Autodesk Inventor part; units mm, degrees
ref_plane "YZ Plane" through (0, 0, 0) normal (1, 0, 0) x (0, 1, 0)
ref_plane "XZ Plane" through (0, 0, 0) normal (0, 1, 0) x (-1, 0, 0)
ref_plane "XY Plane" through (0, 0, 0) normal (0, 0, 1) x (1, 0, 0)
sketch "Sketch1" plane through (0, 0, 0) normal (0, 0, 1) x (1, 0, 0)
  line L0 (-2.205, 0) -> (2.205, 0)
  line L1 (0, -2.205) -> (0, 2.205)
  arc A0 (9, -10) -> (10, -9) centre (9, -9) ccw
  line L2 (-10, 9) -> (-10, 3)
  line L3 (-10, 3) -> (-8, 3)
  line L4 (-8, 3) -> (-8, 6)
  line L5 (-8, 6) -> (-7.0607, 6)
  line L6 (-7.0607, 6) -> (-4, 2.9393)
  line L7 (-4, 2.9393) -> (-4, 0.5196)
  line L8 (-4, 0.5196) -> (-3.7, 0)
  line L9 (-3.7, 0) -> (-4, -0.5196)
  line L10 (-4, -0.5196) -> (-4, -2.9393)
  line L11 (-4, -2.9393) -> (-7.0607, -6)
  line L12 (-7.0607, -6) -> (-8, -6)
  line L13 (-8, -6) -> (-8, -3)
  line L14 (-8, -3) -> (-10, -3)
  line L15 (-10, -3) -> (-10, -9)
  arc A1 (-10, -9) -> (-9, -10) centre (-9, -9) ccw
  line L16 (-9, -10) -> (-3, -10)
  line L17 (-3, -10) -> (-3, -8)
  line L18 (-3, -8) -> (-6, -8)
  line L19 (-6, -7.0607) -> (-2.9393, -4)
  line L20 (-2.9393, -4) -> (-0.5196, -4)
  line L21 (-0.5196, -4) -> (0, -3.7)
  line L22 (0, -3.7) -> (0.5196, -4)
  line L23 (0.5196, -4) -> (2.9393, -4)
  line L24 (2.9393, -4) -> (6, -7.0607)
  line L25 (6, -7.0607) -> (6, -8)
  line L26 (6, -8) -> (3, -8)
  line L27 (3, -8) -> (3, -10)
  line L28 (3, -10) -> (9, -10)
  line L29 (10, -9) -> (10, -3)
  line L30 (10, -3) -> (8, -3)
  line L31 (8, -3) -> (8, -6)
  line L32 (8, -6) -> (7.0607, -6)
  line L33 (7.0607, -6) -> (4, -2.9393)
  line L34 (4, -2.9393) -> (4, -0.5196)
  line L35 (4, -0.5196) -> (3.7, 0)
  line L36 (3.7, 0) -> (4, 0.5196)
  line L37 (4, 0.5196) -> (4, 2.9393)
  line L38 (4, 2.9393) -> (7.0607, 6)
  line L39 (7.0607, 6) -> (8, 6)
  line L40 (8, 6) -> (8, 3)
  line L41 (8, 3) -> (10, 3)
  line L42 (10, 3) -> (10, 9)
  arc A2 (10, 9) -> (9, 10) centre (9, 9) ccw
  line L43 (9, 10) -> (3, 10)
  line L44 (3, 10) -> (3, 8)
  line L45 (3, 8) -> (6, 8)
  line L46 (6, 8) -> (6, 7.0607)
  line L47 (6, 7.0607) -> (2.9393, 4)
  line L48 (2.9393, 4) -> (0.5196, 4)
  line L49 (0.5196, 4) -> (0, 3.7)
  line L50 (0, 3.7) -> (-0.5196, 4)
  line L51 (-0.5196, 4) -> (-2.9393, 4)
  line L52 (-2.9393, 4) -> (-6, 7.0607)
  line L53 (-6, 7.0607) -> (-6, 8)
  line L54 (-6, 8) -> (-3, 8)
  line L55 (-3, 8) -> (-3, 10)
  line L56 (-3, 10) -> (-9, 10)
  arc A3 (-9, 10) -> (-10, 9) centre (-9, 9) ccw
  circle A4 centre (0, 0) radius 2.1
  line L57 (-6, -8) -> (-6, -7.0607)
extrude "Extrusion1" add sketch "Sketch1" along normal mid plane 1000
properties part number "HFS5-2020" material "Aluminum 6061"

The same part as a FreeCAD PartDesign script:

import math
import FreeCAD as App
import Part
import Sketcher
from FreeCAD import Vector
Q = App.Units.Quantity

doc = App.newDocument("Part")
body = doc.addObject("PartDesign::Body", "Body")

# Sketch on XY plane
sketch1 = doc.addObject("Sketcher::SketchObject", "Sketch")
body.addObject(sketch1)
sketch1.AttachmentSupport = (doc.XY_Plane, [""])
sketch1.MapMode = "FlatFace"
sketch1.addGeometry([
    Part.LineSegment(Vector(3, -10, 0), Vector(9, -10, 0)),  # 0
    Part.ArcOfCircle(Part.Circle(Vector(9, -9, 0), Vector(0, 0, 1), 1), math.radians(-90), math.radians(0)),  # 1
    Part.LineSegment(Vector(10, -9, 0), Vector(10, -3, 0)),  # 2
    Part.LineSegment(Vector(10, -3, 0), Vector(8, -3, 0)),  # 3
    Part.LineSegment(Vector(8, -3, 0), Vector(8, -6, 0)),  # 4
    Part.LineSegment(Vector(8, -6, 0), Vector(7.1, -6, 0)),  # 5
    Part.LineSegment(Vector(7.1, -6, 0), Vector(4, -2.9, 0)),  # 6
    Part.LineSegment(Vector(4, -2.9, 0), Vector(4, -0.5, 0)),  # 7
    Part.LineSegment(Vector(4, -0.5, 0), Vector(3.7, 0, 0)),  # 8
    Part.LineSegment(Vector(3.7, 0, 0), Vector(4, 0.5, 0)),  # 9
    Part.LineSegment(Vector(4, 0.5, 0), Vector(4, 2.9, 0)),  # 10
    Part.LineSegment(Vector(4, 2.9, 0), Vector(7.1, 6, 0)),  # 11
    Part.LineSegment(Vector(7.1, 6, 0), Vector(8, 6, 0)),  # 12
    Part.LineSegment(Vector(8, 6, 0), Vector(8, 3, 0)),  # 13
    Part.LineSegment(Vector(8, 3, 0), Vector(10, 3, 0)),  # 14
    Part.LineSegment(Vector(10, 3, 0), Vector(10, 9, 0)),  # 15
    Part.ArcOfCircle(Part.Circle(Vector(9, 9, 0), Vector(0, 0, 1), 1), math.radians(0), math.radians(90)),  # 16
    Part.LineSegment(Vector(9, 10, 0), Vector(3, 10, 0)),  # 17
    Part.LineSegment(Vector(3, 10, 0), Vector(3, 8, 0)),  # 18
    Part.LineSegment(Vector(3, 8, 0), Vector(6, 8, 0)),  # 19
    Part.LineSegment(Vector(6, 8, 0), Vector(6, 7.1, 0)),  # 20
    Part.LineSegment(Vector(6, 7.1, 0), Vector(2.9, 4, 0)),  # 21
    Part.LineSegment(Vector(2.9, 4, 0), Vector(0.5, 4, 0)),  # 22
    Part.LineSegment(Vector(0.5, 4, 0), Vector(0, 3.7, 0)),  # 23
    Part.LineSegment(Vector(0, 3.7, 0), Vector(-0.5, 4, 0)),  # 24
    Part.LineSegment(Vector(-0.5, 4, 0), Vector(-2.9, 4, 0)),  # 25
    Part.LineSegment(Vector(-2.9, 4, 0), Vector(-6, 7.1, 0)),  # 26
    Part.LineSegment(Vector(-6, 7.1, 0), Vector(-6, 8, 0)),  # 27
    Part.LineSegment(Vector(-6, 8, 0), Vector(-3, 8, 0)),  # 28
    Part.LineSegment(Vector(-3, 8, 0), Vector(-3, 10, 0)),  # 29
    Part.LineSegment(Vector(-3, 10, 0), Vector(-9, 10, 0)),  # 30
    Part.ArcOfCircle(Part.Circle(Vector(-9, 9, 0), Vector(0, 0, 1), 1), math.radians(90), math.radians(180)),  # 31
    Part.LineSegment(Vector(-10, 9, 0), Vector(-10, 3, 0)),  # 32
    Part.LineSegment(Vector(-10, 3, 0), Vector(-8, 3, 0)),  # 33
    Part.LineSegment(Vector(-8, 3, 0), Vector(-8, 6, 0)),  # 34
    Part.LineSegment(Vector(-8, 6, 0), Vector(-7.1, 6, 0)),  # 35
    Part.LineSegment(Vector(-7.1, 6, 0), Vector(-4, 2.9, 0)),  # 36
    Part.LineSegment(Vector(-4, 2.9, 0), Vector(-4, 0.5, 0)),  # 37
    Part.LineSegment(Vector(-4, 0.5, 0), Vector(-3.7, 0, 0)),  # 38
    Part.LineSegment(Vector(-3.7, 0, 0), Vector(-4, -0.5, 0)),  # 39
    Part.LineSegment(Vector(-4, -0.5, 0), Vector(-4, -2.9, 0)),  # 40
    Part.LineSegment(Vector(-4, -2.9, 0), Vector(-7.1, -6, 0)),  # 41
    Part.LineSegment(Vector(-7.1, -6, 0), Vector(-8, -6, 0)),  # 42
    Part.LineSegment(Vector(-8, -6, 0), Vector(-8, -3, 0)),  # 43
    Part.LineSegment(Vector(-8, -3, 0), Vector(-10, -3, 0)),  # 44
    Part.LineSegment(Vector(-10, -3, 0), Vector(-10, -9, 0)),  # 45
    Part.ArcOfCircle(Part.Circle(Vector(-9, -9, 0), Vector(0, 0, 1), 1), math.radians(180), math.radians(270)),  # 46
    Part.LineSegment(Vector(-9, -10, 0), Vector(-3, -10, 0)),  # 47
    Part.LineSegment(Vector(-3, -10, 0), Vector(-3, -8, 0)),  # 48
    Part.LineSegment(Vector(-3, -8, 0), Vector(-6, -8, 0)),  # 49
    Part.LineSegment(Vector(-6, -8, 0), Vector(-6, -7.1, 0)),  # 50
    Part.LineSegment(Vector(-6, -7.1, 0), Vector(-2.9, -4, 0)),  # 51
    Part.LineSegment(Vector(-2.9, -4, 0), Vector(-0.5, -4, 0)),  # 52
    Part.LineSegment(Vector(-0.5, -4, 0), Vector(0, -3.7, 0)),  # 53
    Part.LineSegment(Vector(0, -3.7, 0), Vector(0.5, -4, 0)),  # 54
    Part.LineSegment(Vector(0.5, -4, 0), Vector(2.9, -4, 0)),  # 55
    Part.LineSegment(Vector(2.9, -4, 0), Vector(6, -7.1, 0)),  # 56
    Part.LineSegment(Vector(6, -7.1, 0), Vector(6, -8, 0)),  # 57
    Part.LineSegment(Vector(6, -8, 0), Vector(3, -8, 0)),  # 58
    Part.LineSegment(Vector(3, -8, 0), Vector(3, -10, 0)),  # 59
    Part.Circle(Vector(0, 0, 0), Vector(0, 0, 1), 2.1),  # 60
], False)
sketch1.addConstraint([
    Sketcher.Constraint("Tangent", 0, 2, 1, 1),
    Sketcher.Constraint("Tangent", 1, 2, 2, 1),
    Sketcher.Constraint("Coincident", 2, 2, 3, 1),
    Sketcher.Constraint("Coincident", 3, 2, 4, 1),
    Sketcher.Constraint("Coincident", 4, 2, 5, 1),
    Sketcher.Constraint("Coincident", 5, 2, 6, 1),
    Sketcher.Constraint("Coincident", 6, 2, 7, 1),
    Sketcher.Constraint("Coincident", 7, 2, 8, 1),
    Sketcher.Constraint("Coincident", 8, 2, 9, 1),
    Sketcher.Constraint("Coincident", 9, 2, 10, 1),
    Sketcher.Constraint("Coincident", 10, 2, 11, 1),
    Sketcher.Constraint("Coincident", 11, 2, 12, 1),
    Sketcher.Constraint("Coincident", 12, 2, 13, 1),
    Sketcher.Constraint("Coincident", 13, 2, 14, 1),
    Sketcher.Constraint("Coincident", 14, 2, 15, 1),
    Sketcher.Constraint("Tangent", 15, 2, 16, 1),
    Sketcher.Constraint("Tangent", 16, 2, 17, 1),
    Sketcher.Constraint("Coincident", 17, 2, 18, 1),
    Sketcher.Constraint("Coincident", 18, 2, 19, 1),
    Sketcher.Constraint("Coincident", 19, 2, 20, 1),
    Sketcher.Constraint("Coincident", 20, 2, 21, 1),
    Sketcher.Constraint("Coincident", 21, 2, 22, 1),
    Sketcher.Constraint("Coincident", 22, 2, 23, 1),
    Sketcher.Constraint("Coincident", 23, 2, 24, 1),
    Sketcher.Constraint("Coincident", 24, 2, 25, 1),
    Sketcher.Constraint("Coincident", 25, 2, 26, 1),
    Sketcher.Constraint("Coincident", 26, 2, 27, 1),
    Sketcher.Constraint("Coincident", 27, 2, 28, 1),
    Sketcher.Constraint("Coincident", 28, 2, 29, 1),
    Sketcher.Constraint("Coincident", 29, 2, 30, 1),
    Sketcher.Constraint("Tangent", 30, 2, 31, 1),
    Sketcher.Constraint("Tangent", 31, 2, 32, 1),
    Sketcher.Constraint("Coincident", 32, 2, 33, 1),
    Sketcher.Constraint("Coincident", 33, 2, 34, 1),
    Sketcher.Constraint("Coincident", 34, 2, 35, 1),
    Sketcher.Constraint("Coincident", 35, 2, 36, 1),
    Sketcher.Constraint("Coincident", 36, 2, 37, 1),
    Sketcher.Constraint("Coincident", 37, 2, 38, 1),
    Sketcher.Constraint("Coincident", 38, 2, 39, 1),
    Sketcher.Constraint("Coincident", 39, 2, 40, 1),
    Sketcher.Constraint("Coincident", 40, 2, 41, 1),
    Sketcher.Constraint("Coincident", 41, 2, 42, 1),
    Sketcher.Constraint("Coincident", 42, 2, 43, 1),
    Sketcher.Constraint("Coincident", 43, 2, 44, 1),
    Sketcher.Constraint("Coincident", 44, 2, 45, 1),
    Sketcher.Constraint("Tangent", 45, 2, 46, 1),
    Sketcher.Constraint("Tangent", 46, 2, 47, 1),
    Sketcher.Constraint("Coincident", 47, 2, 48, 1),
    Sketcher.Constraint("Coincident", 48, 2, 49, 1),
    Sketcher.Constraint("Coincident", 49, 2, 50, 1),
    Sketcher.Constraint("Coincident", 50, 2, 51, 1),
    Sketcher.Constraint("Coincident", 51, 2, 52, 1),
    Sketcher.Constraint("Coincident", 52, 2, 53, 1),
    Sketcher.Constraint("Coincident", 53, 2, 54, 1),
    Sketcher.Constraint("Coincident", 54, 2, 55, 1),
    Sketcher.Constraint("Coincident", 55, 2, 56, 1),
    Sketcher.Constraint("Coincident", 56, 2, 57, 1),
    Sketcher.Constraint("Coincident", 57, 2, 58, 1),
    Sketcher.Constraint("Coincident", 58, 2, 59, 1),
    Sketcher.Constraint("Coincident", 59, 2, 0, 1),
    Sketcher.Constraint("Horizontal", 0),
    Sketcher.Constraint("Vertical", 2),
    Sketcher.Constraint("Horizontal", 3),
    Sketcher.Constraint("Vertical", 4),
    Sketcher.Constraint("Horizontal", 5),
    Sketcher.Constraint("Vertical", 7),
    Sketcher.Constraint("Vertical", 10),
    Sketcher.Constraint("Horizontal", 12),
    Sketcher.Constraint("Vertical", 13),
    Sketcher.Constraint("Horizontal", 14),
    Sketcher.Constraint("Vertical", 15),
    Sketcher.Constraint("Horizontal", 17),
    Sketcher.Constraint("Vertical", 18),
    Sketcher.Constraint("Horizontal", 19),
    Sketcher.Constraint("Vertical", 20),
    Sketcher.Constraint("Horizontal", 22),
    Sketcher.Constraint("Horizontal", 25),
    Sketcher.Constraint("Vertical", 27),
    Sketcher.Constraint("Horizontal", 28),
    Sketcher.Constraint("Vertical", 29),
    Sketcher.Constraint("Horizontal", 30),
    Sketcher.Constraint("Vertical", 32),
    Sketcher.Constraint("Horizontal", 33),
    Sketcher.Constraint("Vertical", 34),
    Sketcher.Constraint("Horizontal", 35),
    Sketcher.Constraint("Vertical", 37),
    Sketcher.Constraint("Vertical", 40),
    Sketcher.Constraint("Horizontal", 42),
    Sketcher.Constraint("Vertical", 43),
    Sketcher.Constraint("Horizontal", 44),
    Sketcher.Constraint("Vertical", 45),
    Sketcher.Constraint("Horizontal", 47),
    Sketcher.Constraint("Vertical", 48),
    Sketcher.Constraint("Horizontal", 49),
    Sketcher.Constraint("Vertical", 50),
    Sketcher.Constraint("Horizontal", 52),
    Sketcher.Constraint("Horizontal", 55),
    Sketcher.Constraint("Vertical", 57),
    Sketcher.Constraint("Horizontal", 58),
    Sketcher.Constraint("Vertical", 59),
    Sketcher.Constraint("Coincident", 60, 3, -1, 1),
    Sketcher.Constraint("Equal", 1, 16),
    Sketcher.Constraint("Equal", 16, 31),
    Sketcher.Constraint("Equal", 31, 46),
    Sketcher.Constraint("Symmetric", 1, 3, 31, 3, -1, 1),
    Sketcher.Constraint("Symmetric", 16, 3, 46, 3, -1, 1),
    Sketcher.Constraint("Symmetric", 3, 2, 33, 2, -1, 1),
    Sketcher.Constraint("Symmetric", 5, 2, 35, 2, -1, 1),
    Sketcher.Constraint("Symmetric", 6, 2, 36, 2, -1, 1),
    Sketcher.Constraint("Symmetric", 8, 2, 38, 2, -1, 1),
    Sketcher.Constraint("Symmetric", 9, 2, 39, 2, -1, 1),
    Sketcher.Constraint("Symmetric", 11, 2, 41, 2, -1, 1),
    Sketcher.Constraint("Symmetric", 13, 2, 43, 2, -1, 1),
    Sketcher.Constraint("Symmetric", 18, 2, 48, 2, -1, 1),
    Sketcher.Constraint("Symmetric", 20, 2, 50, 2, -1, 1),
    Sketcher.Constraint("Symmetric", 21, 2, 51, 2, -1, 1),
    Sketcher.Constraint("Symmetric", 23, 2, 53, 2, -1, 1),
    Sketcher.Constraint("Symmetric", 24, 2, 54, 2, -1, 1),
    Sketcher.Constraint("Symmetric", 26, 2, 56, 2, -1, 1),
    Sketcher.Constraint("Symmetric", 28, 2, 58, 2, -1, 1),
    Sketcher.Constraint("Symmetric", 16, 3, 31, 3, -2),
    Sketcher.Constraint("Symmetric", 22, 2, 24, 2, -2),
    Sketcher.Constraint("Symmetric", 20, 2, 26, 2, -2),
    Sketcher.Constraint("Symmetric", 18, 2, 28, 2, -2),
    Sketcher.Constraint("Symmetric", 13, 2, 33, 2, -2),
    Sketcher.Constraint("Symmetric", 11, 2, 35, 2, -2),
    Sketcher.Constraint("Symmetric", 10, 2, 36, 2, -2),
    Sketcher.Constraint("PointOnObject", 8, 2, -1),
    Sketcher.Constraint("PointOnObject", 23, 2, -2),
    Sketcher.Constraint("Perpendicular", 6, 11),
    Sketcher.Constraint("Parallel", 11, 21),
    Sketcher.Constraint("Perpendicular", 8, 23),
    Sketcher.Constraint("Perpendicular", 9, 24),
    Sketcher.Constraint("Perpendicular", 21, 26),
    Sketcher.Constraint("Perpendicular", 23, 38),
    Sketcher.Constraint("Perpendicular", 36, 41),
    Sketcher.Constraint("Perpendicular", 38, 53),
    Sketcher.Constraint("Perpendicular", 51, 56),
    Sketcher.Constraint("Equal", 47, 2),
    Sketcher.Constraint("Equal", 58, 4),
    Sketcher.Constraint("Equal", 55, 7),
    Sketcher.Constraint("Equal", 44, 18),
    Sketcher.Constraint("Equal", 42, 20),
    Sketcher.Constraint("Equal", 11, 21),
    Sketcher.Constraint("Equal", 9, 23),
    Sketcher.Constraint("Radius", 1, 1.0),
    Sketcher.Constraint("Diameter", 60, 4.2),
    Sketcher.Constraint("DistanceX", 0, 1, 0, 2, 6.0),
    Sketcher.Constraint("DistanceX", 3, 2, 3, 1, 2.0),
    Sketcher.Constraint("DistanceX", 19, 1, 19, 2, 3.0),
    Sketcher.Constraint("Angle", 8, Q("120.0007 deg")),
    Sketcher.Constraint("DistanceX", -1, 1, 1, 3, 9.0),
    Sketcher.Constraint("DistanceX", -1, 1, 6, 2, 4.0),
    Sketcher.Constraint("Distance", 8, 0.6),
    Sketcher.Constraint("DistanceX", 5, 2, 5, 1, 0.9393),
])
pad1 = doc.addObject("PartDesign::Pad", "Pad")
body.addObject(pad1)
pad1.Profile = sketch1
pad1.Length = 1000
pad1.Midplane = True

doc.recompute()
